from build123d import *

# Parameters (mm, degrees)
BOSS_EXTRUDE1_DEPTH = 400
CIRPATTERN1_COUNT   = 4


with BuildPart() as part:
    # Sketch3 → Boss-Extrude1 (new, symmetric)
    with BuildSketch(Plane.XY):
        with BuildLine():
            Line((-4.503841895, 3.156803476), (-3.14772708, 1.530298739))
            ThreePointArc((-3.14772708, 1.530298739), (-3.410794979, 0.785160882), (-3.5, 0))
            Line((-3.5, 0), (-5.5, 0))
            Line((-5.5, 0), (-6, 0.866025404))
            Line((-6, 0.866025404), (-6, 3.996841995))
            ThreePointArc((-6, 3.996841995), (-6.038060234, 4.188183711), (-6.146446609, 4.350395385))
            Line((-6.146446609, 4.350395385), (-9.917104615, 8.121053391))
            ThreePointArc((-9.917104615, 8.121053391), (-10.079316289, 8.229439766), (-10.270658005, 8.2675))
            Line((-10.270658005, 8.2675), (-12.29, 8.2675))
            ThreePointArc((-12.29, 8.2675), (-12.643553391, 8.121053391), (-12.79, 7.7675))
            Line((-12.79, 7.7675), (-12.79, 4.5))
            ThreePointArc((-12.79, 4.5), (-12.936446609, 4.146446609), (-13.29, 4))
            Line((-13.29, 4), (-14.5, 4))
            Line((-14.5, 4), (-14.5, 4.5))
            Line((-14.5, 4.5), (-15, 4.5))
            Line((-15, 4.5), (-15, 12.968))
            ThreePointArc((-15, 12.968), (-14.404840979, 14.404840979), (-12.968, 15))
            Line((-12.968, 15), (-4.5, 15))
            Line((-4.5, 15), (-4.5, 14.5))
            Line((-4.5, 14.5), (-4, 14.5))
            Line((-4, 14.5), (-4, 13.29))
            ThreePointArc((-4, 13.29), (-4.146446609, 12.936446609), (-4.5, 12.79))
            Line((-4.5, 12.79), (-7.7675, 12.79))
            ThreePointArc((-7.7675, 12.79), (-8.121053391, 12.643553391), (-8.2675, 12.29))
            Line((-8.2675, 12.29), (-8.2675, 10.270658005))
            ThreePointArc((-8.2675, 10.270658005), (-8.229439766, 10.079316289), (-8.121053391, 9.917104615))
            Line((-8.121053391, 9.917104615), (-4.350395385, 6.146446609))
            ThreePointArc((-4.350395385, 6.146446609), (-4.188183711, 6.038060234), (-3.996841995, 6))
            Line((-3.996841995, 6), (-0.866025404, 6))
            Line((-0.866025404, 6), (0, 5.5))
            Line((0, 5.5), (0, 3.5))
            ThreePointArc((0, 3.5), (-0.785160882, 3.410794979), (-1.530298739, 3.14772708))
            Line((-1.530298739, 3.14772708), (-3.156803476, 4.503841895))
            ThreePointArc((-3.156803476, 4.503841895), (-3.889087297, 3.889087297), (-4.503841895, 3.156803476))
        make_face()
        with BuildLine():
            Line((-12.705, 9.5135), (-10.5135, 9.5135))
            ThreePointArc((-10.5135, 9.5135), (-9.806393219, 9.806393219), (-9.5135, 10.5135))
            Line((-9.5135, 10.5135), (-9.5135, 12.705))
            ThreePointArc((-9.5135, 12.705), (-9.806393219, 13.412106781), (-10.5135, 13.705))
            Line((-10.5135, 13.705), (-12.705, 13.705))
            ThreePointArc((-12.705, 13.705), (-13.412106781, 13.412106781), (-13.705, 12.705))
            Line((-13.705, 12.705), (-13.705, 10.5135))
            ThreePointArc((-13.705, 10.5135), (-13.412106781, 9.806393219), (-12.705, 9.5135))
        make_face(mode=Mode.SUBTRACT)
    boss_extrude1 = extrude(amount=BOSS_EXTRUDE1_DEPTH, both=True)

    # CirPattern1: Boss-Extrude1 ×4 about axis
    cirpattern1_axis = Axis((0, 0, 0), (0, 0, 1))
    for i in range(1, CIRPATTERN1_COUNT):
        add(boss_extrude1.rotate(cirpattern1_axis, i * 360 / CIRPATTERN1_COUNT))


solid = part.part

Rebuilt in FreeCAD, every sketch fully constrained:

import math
import FreeCAD as App
import Part
import Sketcher

V = App.Vector
Q = App.Units.Quantity

doc = App.newDocument("Part")
params = doc.addObject("Spreadsheet::Sheet", "Params")
for row, (alias, value) in enumerate([
    ("sketch1_radius", "1 mm"),
    ("sketch1_radius2", "5.5 mm"),
    ("sketch1_radius3", "3.5 mm"),
    ("sketch1_radius4", "0.5 mm"),
    ("sketch1_width", "2 mm"),
    ("pad1_length", "800 mm"),
], start=1):
    params.set(f"A{row}", alias)
    params.set(f"B{row}", "=" + value)
    params.setAlias(f"B{row}", alias)

body = doc.addObject("PartDesign::Body", "Body")

sketch1 = body.newObject("Sketcher::SketchObject", "Sketch")
sketch1.AttachmentSupport = (doc.getObject("XY_Plane"), [""])
sketch1.MapMode = "FlatFace"
sketch1.addGeometry(Part.LineSegment(V(-3.15, 1.53, 0), V(-4.5, 3.16, 0)), False)
sketch1.addGeometry(Part.ArcOfCircle(Part.Circle(V(0, 0, 0), V(0, 0, 1), 5.5), math.radians(125.03), math.radians(144.97)), False)
sketch1.addGeometry(Part.LineSegment(V(-3.16, 4.5, 0), V(-1.53, 3.15, 0)), False)
sketch1.addGeometry(Part.ArcOfCircle(Part.Circle(V(0, 0, 0), V(0, 0, 1), 3.5), math.radians(90), math.radians(116)), False)
sketch1.addGeometry(Part.LineSegment(V(0, 3.5, 0), V(0, 5.5, 0)), False)
sketch1.addGeometry(Part.LineSegment(V(0, 5.5, 0), V(-0.87, 6, 0)), False)
sketch1.addGeometry(Part.LineSegment(V(-0.87, 6, 0), V(-4, 6, 0)), False)
sketch1.addGeometry(Part.ArcOfCircle(Part.Circle(V(-4, 6.5, 0), V(0, 0, 1), 0.5), math.radians(-135), math.radians(-90)), False)
sketch1.addGeometry(Part.LineSegment(V(-4.35, 6.15, 0), V(-8.12, 9.92, 0)), False)
sketch1.addGeometry(Part.ArcOfCircle(Part.Circle(V(-7.77, 10.27, 0), V(0, 0, 1), 0.5), math.radians(-180), math.radians(-135)), False)
sketch1.addGeometry(Part.LineSegment(V(-8.27, 10.27, 0), V(-8.27, 12.29, 0)), False)
sketch1.addGeometry(Part.ArcOfCircle(Part.Circle(V(-7.77, 12.29, 0), V(0, 0, 1), 0.5), math.radians(90), math.radians(180)), False)
sketch1.addGeometry(Part.LineSegment(V(-7.77, 12.79, 0), V(-4.5, 12.79, 0)), False)
sketch1.addGeometry(Part.ArcOfCircle(Part.Circle(V(-4.5, 13.29, 0), V(0, 0, 1), 0.5), math.radians(-90), math.radians(0)), False)
sketch1.addGeometry(Part.LineSegment(V(-4, 13.29, 0), V(-4, 14.5, 0)), False)
sketch1.addGeometry(Part.LineSegment(V(-4, 14.5, 0), V(-4.5, 14.5, 0)), False)
sketch1.addGeometry(Part.LineSegment(V(-4.5, 14.5, 0), V(-4.5, 15, 0)), False)
sketch1.addGeometry(Part.LineSegment(V(-4.5, 15, 0), V(-12.97, 15, 0)), False)
sketch1.addGeometry(Part.ArcOfCircle(Part.Circle(V(-12.97, 12.97, 0), V(0, 0, 1), 2.03), math.radians(90), math.radians(180)), False)
sketch1.addGeometry(Part.LineSegment(V(-15, 12.97, 0), V(-15, 4.5, 0)), False)
sketch1.addGeometry(Part.LineSegment(V(-15, 4.5, 0), V(-14.5, 4.5, 0)), False)
sketch1.addGeometry(Part.LineSegment(V(-14.5, 4.5, 0), V(-14.5, 4, 0)), False)
sketch1.addGeometry(Part.LineSegment(V(-14.5, 4, 0), V(-13.29, 4, 0)), False)
sketch1.addGeometry(Part.ArcOfCircle(Part.Circle(V(-13.29, 4.5, 0), V(0, 0, 1), 0.5), math.radians(-90), math.radians(0)), False)
sketch1.addGeometry(Part.LineSegment(V(-12.79, 4.5, 0), V(-12.79, 7.77, 0)), False)
sketch1.addGeometry(Part.ArcOfCircle(Part.Circle(V(-12.29, 7.77, 0), V(0, 0, 1), 0.5), math.radians(90), math.radians(180)), False)
sketch1.addGeometry(Part.LineSegment(V(-12.29, 8.27, 0), V(-10.27, 8.27, 0)), False)
sketch1.addGeometry(Part.ArcOfCircle(Part.Circle(V(-10.27, 7.77, 0), V(0, 0, 1), 0.5), math.radians(45), math.radians(90)), False)
sketch1.addGeometry(Part.LineSegment(V(-9.92, 8.12, 0), V(-6.15, 4.35, 0)), False)
sketch1.addGeometry(Part.ArcOfCircle(Part.Circle(V(-6.5, 4, 0), V(0, 0, 1), 0.5), math.radians(0), math.radians(45)), False)
sketch1.addGeometry(Part.LineSegment(V(-6, 4, 0), V(-6, 0.87, 0)), False)
sketch1.addGeometry(Part.LineSegment(V(-6, 0.87, 0), V(-5.5, 0, 0)), False)
sketch1.addGeometry(Part.LineSegment(V(-5.5, 0, 0), V(-3.5, 0, 0)), False)
sketch1.addGeometry(Part.ArcOfCircle(Part.Circle(V(0, 0, 0), V(0, 0, 1), 3.5), math.radians(154), math.radians(180)), False)
sketch1.addGeometry(Part.ArcOfCircle(Part.Circle(V(-12.7, 10.51, 0), V(0, 0, 1), 1), math.radians(-180), math.radians(-90)), False)
sketch1.addGeometry(Part.LineSegment(V(-13.71, 10.51, 0), V(-13.71, 12.71, 0)), False)
sketch1.addGeometry(Part.ArcOfCircle(Part.Circle(V(-12.7, 12.7, 0), V(0, 0, 1), 1), math.radians(90), math.radians(180)), False)
sketch1.addGeometry(Part.LineSegment(V(-12.71, 13.71, 0), V(-10.51, 13.71, 0)), False)
sketch1.addGeometry(Part.ArcOfCircle(Part.Circle(V(-10.51, 12.7, 0), V(0, 0, 1), 1), math.radians(0), math.radians(90)), False)
sketch1.addGeometry(Part.LineSegment(V(-9.51, 12.71, 0), V(-9.51, 10.51, 0)), False)
sketch1.addGeometry(Part.ArcOfCircle(Part.Circle(V(-10.51, 10.51, 0), V(0, 0, 1), 1), math.radians(-90), math.radians(0)), False)
sketch1.addGeometry(Part.LineSegment(V(-10.51, 9.51, 0), V(-12.71, 9.51, 0)), False)
sketch1.addConstraint(Sketcher.Constraint("Coincident", 0, 2, 1, 2))
sketch1.addConstraint(Sketcher.Constraint("Coincident", 1, 1, 2, 1))
sketch1.addConstraint(Sketcher.Constraint("Coincident", 2, 2, 3, 2))
sketch1.addConstraint(Sketcher.Constraint("Coincident", 3, 1, 4, 1))
sketch1.addConstraint(Sketcher.Constraint("Coincident", 4, 2, 5, 1))
sketch1.addConstraint(Sketcher.Constraint("Coincident", 5, 2, 6, 1))
sketch1.addConstraint(Sketcher.Constraint("Tangent", 6, 2, 7, 2))
sketch1.addConstraint(Sketcher.Constraint("Tangent", 7, 1, 8, 1))
sketch1.addConstraint(Sketcher.Constraint("Tangent", 8, 2, 9, 2))
sketch1.addConstraint(Sketcher.Constraint("Tangent", 9, 1, 10, 1))
sketch1.addConstraint(Sketcher.Constraint("Tangent", 10, 2, 11, 2))
sketch1.addConstraint(Sketcher.Constraint("Tangent", 11, 1, 12, 1))
sketch1.addConstraint(Sketcher.Constraint("Tangent", 12, 2, 13, 1))
sketch1.addConstraint(Sketcher.Constraint("Tangent", 13, 2, 14, 1))
sketch1.addConstraint(Sketcher.Constraint("Coincident", 14, 2, 15, 1))
sketch1.addConstraint(Sketcher.Constraint("Coincident", 15, 2, 16, 1))
sketch1.addConstraint(Sketcher.Constraint("Coincident", 16, 2, 17, 1))
sketch1.addConstraint(Sketcher.Constraint("Tangent", 17, 2, 18, 1))
sketch1.addConstraint(Sketcher.Constraint("Tangent", 18, 2, 19, 1))
sketch1.addConstraint(Sketcher.Constraint("Coincident", 19, 2, 20, 1))
sketch1.addConstraint(Sketcher.Constraint("Coincident", 20, 2, 21, 1))
sketch1.addConstraint(Sketcher.Constraint("Coincident", 21, 2, 22, 1))
sketch1.addConstraint(Sketcher.Constraint("Tangent", 22, 2, 23, 1))
sketch1.addConstraint(Sketcher.Constraint("Tangent", 23, 2, 24, 1))
sketch1.addConstraint(Sketcher.Constraint("Tangent", 24, 2, 25, 2))
sketch1.addConstraint(Sketcher.Constraint("Tangent", 25, 1, 26, 1))
sketch1.addConstraint(Sketcher.Constraint("Tangent", 26, 2, 27, 2))
sketch1.addConstraint(Sketcher.Constraint("Tangent", 27, 1, 28, 1))
sketch1.addConstraint(Sketcher.Constraint("Tangent", 28, 2, 29, 2))
sketch1.addConstraint(Sketcher.Constraint("Tangent", 29, 1, 30, 1))
sketch1.addConstraint(Sketcher.Constraint("Coincident", 30, 2, 31, 1))
sketch1.addConstraint(Sketcher.Constraint("Coincident", 31, 2, 32, 1))
sketch1.addConstraint(Sketcher.Constraint("Coincident", 32, 2, 33, 2))
sketch1.addConstraint(Sketcher.Constraint("Coincident", 33, 1, 0, 1))
sketch1.addConstraint(Sketcher.Constraint("Tangent", 34, 1, 35, 1))
sketch1.addConstraint(Sketcher.Constraint("Tangent", 35, 2, 36, 2))
sketch1.addConstraint(Sketcher.Constraint("Tangent", 36, 1, 37, 1))
sketch1.addConstraint(Sketcher.Constraint("Tangent", 37, 2, 38, 2))
sketch1.addConstraint(Sketcher.Constraint("Tangent", 38, 1, 39, 1))
sketch1.addConstraint(Sketcher.Constraint("Tangent", 39, 2, 40, 2))
sketch1.addConstraint(Sketcher.Constraint("Tangent", 40, 1, 41, 1))
sketch1.addConstraint(Sketcher.Constraint("Tangent", 41, 2, 34, 2))
sketch1.addConstraint(Sketcher.Constraint("Vertical", 4))
sketch1.addConstraint(Sketcher.Constraint("Horizontal", 6))
sketch1.addConstraint(Sketcher.Constraint("Vertical", 10))
sketch1.addConstraint(Sketcher.Constraint("Horizontal", 12))
sketch1.addConstraint(Sketcher.Constraint("Vertical", 14))
sketch1.addConstraint(Sketcher.Constraint("Horizontal", 15))
sketch1.addConstraint(Sketcher.Constraint("Vertical", 16))
sketch1.addConstraint(Sketcher.Constraint("Horizontal", 17))
sketch1.addConstraint(Sketcher.Constraint("Vertical", 19))
sketch1.addConstraint(Sketcher.Constraint("Horizontal", 20))
sketch1.addConstraint(Sketcher.Constraint("Vertical", 21))
sketch1.addConstraint(Sketcher.Constraint("Horizontal", 22))
sketch1.addConstraint(Sketcher.Constraint("Vertical", 24))
sketch1.addConstraint(Sketcher.Constraint("Horizontal", 26))
sketch1.addConstraint(Sketcher.Constraint("Vertical", 30))
sketch1.addConstraint(Sketcher.Constraint("Horizontal", 32))
sketch1.addConstraint(Sketcher.Constraint("Vertical", 35))
sketch1.addConstraint(Sketcher.Constraint("Horizontal", 37))
sketch1.addConstraint(Sketcher.Constraint("Vertical", 39))
sketch1.addConstraint(Sketcher.Constraint("Horizontal", 41))
sketch1.addConstraint(Sketcher.Constraint("Coincident", 1, 3, -1, 1))
sketch1.addConstraint(Sketcher.Constraint("Coincident", 3, 3, -1, 1))
sketch1.addConstraint(Sketcher.Constraint("Coincident", 33, 3, -1, 1))
sketch1.addConstraint(Sketcher.Constraint("Equal", 7, 9))
sketch1.addConstraint(Sketcher.Constraint("Equal", 9, 11))
sketch1.addConstraint(Sketcher.Constraint("Equal", 11, 13))
sketch1.addConstraint(Sketcher.Constraint("Equal", 13, 23))
sketch1.addConstraint(Sketcher.Constraint("Equal", 23, 25))
sketch1.addConstraint(Sketcher.Constraint("Equal", 25, 27))
sketch1.addConstraint(Sketcher.Constraint("Equal", 27, 29))
sketch1.addConstraint(Sketcher.Constraint("Equal", 3, 33))
sketch1.addConstraint(Sketcher.Constraint("Equal", 34, 36))
sketch1.addConstraint(Sketcher.Constraint("Equal", 36, 38))
sketch1.addConstraint(Sketcher.Constraint("Equal", 38, 40))
sketch1.addConstraint(Sketcher.Constraint("PointOnObject", 3, 1, -2))
sketch1.addConstraint(Sketcher.Constraint("PointOnObject", 31, 2, -1))
sketch1.addConstraint(Sketcher.Constraint("Parallel", 8, 28))
sketch1.addConstraint(Sketcher.Constraint("Horizontal", 23, 3, 19, 2))
sketch1.addConstraint(Sketcher.Constraint("Vertical", 12, 2, 15, 2))
sketch1.addConstraint(Sketcher.Constraint("Equal", 15, 20))
sketch1.addConstraint(Sketcher.Constraint("Equal", 32, 4))
sketch1.addConstraint(Sketcher.Constraint("Equal", 26, 10))
sketch1.addConstraint(Sketcher.Constraint("Equal", 22, 14))
sketch1.addConstraint(Sketcher.Constraint("Equal", 20, 16))
sketch1.addConstraint(Sketcher.Constraint("Equal", 17, 19))
sketch1.addConstraint(Sketcher.Constraint("Equal", 12, 24))
sketch1.addConstraint(Sketcher.Constraint("Equal", 6, 30))
sketch1.addConstraint(Sketcher.Constraint("Equal", 41, 35))
sketch1.addConstraint(Sketcher.Constraint("Equal", 0, 2))
sketch1.addConstraint(Sketcher.Constraint("Equal", 8, 28))
sketch1.addConstraint(Sketcher.Constraint("Equal", 5, 31))
sketch1.addConstraint(Sketcher.Constraint("Radius", 34, Q("1 mm")))
sketch1.addConstraint(Sketcher.Constraint("Radius", 1, Q("5.5 mm")))
sketch1.addConstraint(Sketcher.Constraint("Radius", 3, Q("3.5 mm")))
sketch1.addConstraint(Sketcher.Constraint("Radius", 7, Q("0.5 mm")))
sketch1.addConstraint(Sketcher.Constraint("DistanceX", 32, 1, 32, 2, Q("2 mm")))
sketch1.addConstraint(Sketcher.Constraint("Angle", 5, Q("150 deg")))
sketch1.addConstraint(Sketcher.Constraint("Angle", 8, Q("135 deg")))
sketch1.addConstraint(Sketcher.Constraint("Distance", 5, Q("1 mm")))
sketch1.addConstraint(Sketcher.Constraint("DistanceX", 13, 2, -1, 1, Q("4 mm")))
sketch1.addConstraint(Sketcher.Constraint("DistanceY", -1, 1, 16, 2, Q("15 mm")))
sketch1.addConstraint(Sketcher.Constraint("Radius", 18, Q("2.032 mm")))
sketch1.addConstraint(Sketcher.Constraint("DistanceX", 22, 1, 22, 2, Q("1.21 mm")))
sketch1.addConstraint(Sketcher.Constraint("Angle", 0, Q("129.82 deg")))
sketch1.addConstraint(Sketcher.Constraint("Angle", 2, Q("-39.82 deg")))
sketch1.addConstraint(Sketcher.Constraint("DistanceX", 12, 1, 12, 2, Q("3.2675 mm")))
sketch1.addConstraint(Sketcher.Constraint("DistanceX", 37, 1, 37, 2, Q("2.1915 mm")))
sketch1.addConstraint(Sketcher.Constraint("DistanceX", 34, 3, -1, 1, Q("12.705 mm")))
sketch1.addConstraint(Sketcher.Constraint("DistanceY", -1, 1, 36, 3, Q("12.705 mm")))
sketch1.addConstraint(Sketcher.Constraint("DistanceX", 0, 2, 7, 3, Q("0.507 mm")))
sketch1.addConstraint(Sketcher.Constraint("DistanceX", 26, 1, 26, 2, Q("2.019342 mm")))
sketch1.setExpression("Constraints[93]", "Params.sketch1_radius")
sketch1.setExpression("Constraints[94]", "Params.sketch1_radius2")
sketch1.setExpression("Constraints[95]", "Params.sketch1_radius3")
sketch1.setExpression("Constraints[96]", "Params.sketch1_radius4")
sketch1.setExpression("Constraints[97]", "Params.sketch1_width")
pad1 = body.newObject("PartDesign::Pad", "Pad")
pad1.Profile = sketch1
pad1.setExpression("Length", "Params.pad1_length")
pad1.Midplane = True
doc.recompute()

polarpattern = body.newObject("PartDesign::PolarPattern", "PolarPattern")
polarpattern.Originals = [pad1]
polarpattern.Axis = (doc.getObject("Z_Axis"), [""])
polarpattern.Angle = 360
polarpattern.Occurrences = 4
body.Tip = polarpattern

doc.recompute()
